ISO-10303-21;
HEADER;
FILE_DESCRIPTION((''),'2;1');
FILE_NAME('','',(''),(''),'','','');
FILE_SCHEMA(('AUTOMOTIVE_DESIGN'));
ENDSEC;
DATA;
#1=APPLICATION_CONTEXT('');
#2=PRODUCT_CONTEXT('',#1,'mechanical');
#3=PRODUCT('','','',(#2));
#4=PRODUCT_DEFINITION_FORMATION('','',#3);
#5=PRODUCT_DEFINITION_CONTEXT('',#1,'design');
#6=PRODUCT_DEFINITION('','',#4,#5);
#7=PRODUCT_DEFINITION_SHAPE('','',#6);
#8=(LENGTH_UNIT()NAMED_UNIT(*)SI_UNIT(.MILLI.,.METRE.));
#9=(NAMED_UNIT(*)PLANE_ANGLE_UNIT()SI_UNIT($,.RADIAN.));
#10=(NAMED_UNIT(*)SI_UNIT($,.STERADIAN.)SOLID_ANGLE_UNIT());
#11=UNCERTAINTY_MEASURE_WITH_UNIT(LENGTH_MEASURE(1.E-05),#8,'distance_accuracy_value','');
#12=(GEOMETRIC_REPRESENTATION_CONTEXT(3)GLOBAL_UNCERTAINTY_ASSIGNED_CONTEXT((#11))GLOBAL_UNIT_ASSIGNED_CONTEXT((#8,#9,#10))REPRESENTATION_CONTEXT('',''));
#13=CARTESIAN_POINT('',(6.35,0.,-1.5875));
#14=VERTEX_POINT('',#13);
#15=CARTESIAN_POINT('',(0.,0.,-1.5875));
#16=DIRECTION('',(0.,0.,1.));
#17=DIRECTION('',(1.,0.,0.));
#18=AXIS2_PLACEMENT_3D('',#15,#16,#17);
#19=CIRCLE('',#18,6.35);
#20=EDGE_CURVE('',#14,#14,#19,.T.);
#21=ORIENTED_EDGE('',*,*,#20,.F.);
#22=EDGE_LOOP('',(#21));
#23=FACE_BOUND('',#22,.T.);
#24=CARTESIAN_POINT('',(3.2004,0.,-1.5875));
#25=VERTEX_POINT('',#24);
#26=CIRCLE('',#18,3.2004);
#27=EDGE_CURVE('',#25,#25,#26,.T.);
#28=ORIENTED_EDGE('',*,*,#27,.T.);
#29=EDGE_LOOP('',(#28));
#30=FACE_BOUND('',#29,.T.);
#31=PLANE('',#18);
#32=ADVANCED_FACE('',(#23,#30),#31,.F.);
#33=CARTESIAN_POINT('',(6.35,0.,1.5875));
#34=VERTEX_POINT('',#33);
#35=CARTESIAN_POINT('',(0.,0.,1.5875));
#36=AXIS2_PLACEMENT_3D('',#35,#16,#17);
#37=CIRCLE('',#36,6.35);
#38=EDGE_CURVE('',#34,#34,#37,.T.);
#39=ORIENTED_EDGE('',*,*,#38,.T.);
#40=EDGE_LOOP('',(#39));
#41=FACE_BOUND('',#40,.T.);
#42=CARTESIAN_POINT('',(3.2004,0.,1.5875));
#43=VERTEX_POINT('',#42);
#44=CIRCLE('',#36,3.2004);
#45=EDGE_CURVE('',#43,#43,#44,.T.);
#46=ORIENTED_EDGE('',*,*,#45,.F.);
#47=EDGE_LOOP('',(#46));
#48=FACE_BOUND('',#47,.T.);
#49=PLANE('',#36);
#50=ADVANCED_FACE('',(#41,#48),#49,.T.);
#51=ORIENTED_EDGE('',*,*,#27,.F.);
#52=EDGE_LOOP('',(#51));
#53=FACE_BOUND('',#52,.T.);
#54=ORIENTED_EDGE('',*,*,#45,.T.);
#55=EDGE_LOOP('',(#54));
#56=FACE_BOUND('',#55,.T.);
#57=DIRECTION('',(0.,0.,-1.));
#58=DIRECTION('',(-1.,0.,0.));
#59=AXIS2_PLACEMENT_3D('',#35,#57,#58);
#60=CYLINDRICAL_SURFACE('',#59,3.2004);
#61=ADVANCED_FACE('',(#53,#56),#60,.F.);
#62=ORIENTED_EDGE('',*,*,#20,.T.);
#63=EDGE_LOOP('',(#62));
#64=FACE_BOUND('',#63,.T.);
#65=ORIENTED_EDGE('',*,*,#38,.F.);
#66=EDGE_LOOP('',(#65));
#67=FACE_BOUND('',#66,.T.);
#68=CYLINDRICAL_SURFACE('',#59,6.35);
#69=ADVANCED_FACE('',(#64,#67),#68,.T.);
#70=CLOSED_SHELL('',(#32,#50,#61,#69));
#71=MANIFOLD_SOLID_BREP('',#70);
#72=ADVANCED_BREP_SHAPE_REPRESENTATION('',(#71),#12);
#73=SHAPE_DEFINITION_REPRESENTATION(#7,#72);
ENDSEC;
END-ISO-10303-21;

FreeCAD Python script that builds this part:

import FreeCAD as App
import Part
import Sketcher
from FreeCAD import Vector
Q = App.Units.Quantity

doc = App.newDocument("Part")
body = doc.addObject("PartDesign::Body", "Body")

# Sketch on XY plane
sketch1 = doc.addObject("Sketcher::SketchObject", "Sketch")
body.addObject(sketch1)
sketch1.AttachmentSupport = (doc.XY_Plane, [""])
sketch1.MapMode = "FlatFace"
sketch1.addGeometry(Part.Circle(Vector(0, 0, 0), Vector(0, 0, 1), 6.35), False)
sketch1.addGeometry(Part.Circle(Vector(0, 0, 0), Vector(0, 0, 1), 3.2004), False)
sketch1.addConstraint(Sketcher.Constraint("Coincident", 0, 3, -1, 1))
sketch1.addConstraint(Sketcher.Constraint("Coincident", 1, 3, -1, 1))
sketch1.addConstraint(Sketcher.Constraint("Diameter", 0, Q("0.5 in")))
sketch1.addConstraint(Sketcher.Constraint("Diameter", 1, Q("0.252 in")))
pad1 = doc.addObject("PartDesign::Pad", "Pad")
body.addObject(pad1)
pad1.Profile = sketch1
pad1.Length = Q("0.125 in")
pad1.Midplane = True

doc.recompute()
